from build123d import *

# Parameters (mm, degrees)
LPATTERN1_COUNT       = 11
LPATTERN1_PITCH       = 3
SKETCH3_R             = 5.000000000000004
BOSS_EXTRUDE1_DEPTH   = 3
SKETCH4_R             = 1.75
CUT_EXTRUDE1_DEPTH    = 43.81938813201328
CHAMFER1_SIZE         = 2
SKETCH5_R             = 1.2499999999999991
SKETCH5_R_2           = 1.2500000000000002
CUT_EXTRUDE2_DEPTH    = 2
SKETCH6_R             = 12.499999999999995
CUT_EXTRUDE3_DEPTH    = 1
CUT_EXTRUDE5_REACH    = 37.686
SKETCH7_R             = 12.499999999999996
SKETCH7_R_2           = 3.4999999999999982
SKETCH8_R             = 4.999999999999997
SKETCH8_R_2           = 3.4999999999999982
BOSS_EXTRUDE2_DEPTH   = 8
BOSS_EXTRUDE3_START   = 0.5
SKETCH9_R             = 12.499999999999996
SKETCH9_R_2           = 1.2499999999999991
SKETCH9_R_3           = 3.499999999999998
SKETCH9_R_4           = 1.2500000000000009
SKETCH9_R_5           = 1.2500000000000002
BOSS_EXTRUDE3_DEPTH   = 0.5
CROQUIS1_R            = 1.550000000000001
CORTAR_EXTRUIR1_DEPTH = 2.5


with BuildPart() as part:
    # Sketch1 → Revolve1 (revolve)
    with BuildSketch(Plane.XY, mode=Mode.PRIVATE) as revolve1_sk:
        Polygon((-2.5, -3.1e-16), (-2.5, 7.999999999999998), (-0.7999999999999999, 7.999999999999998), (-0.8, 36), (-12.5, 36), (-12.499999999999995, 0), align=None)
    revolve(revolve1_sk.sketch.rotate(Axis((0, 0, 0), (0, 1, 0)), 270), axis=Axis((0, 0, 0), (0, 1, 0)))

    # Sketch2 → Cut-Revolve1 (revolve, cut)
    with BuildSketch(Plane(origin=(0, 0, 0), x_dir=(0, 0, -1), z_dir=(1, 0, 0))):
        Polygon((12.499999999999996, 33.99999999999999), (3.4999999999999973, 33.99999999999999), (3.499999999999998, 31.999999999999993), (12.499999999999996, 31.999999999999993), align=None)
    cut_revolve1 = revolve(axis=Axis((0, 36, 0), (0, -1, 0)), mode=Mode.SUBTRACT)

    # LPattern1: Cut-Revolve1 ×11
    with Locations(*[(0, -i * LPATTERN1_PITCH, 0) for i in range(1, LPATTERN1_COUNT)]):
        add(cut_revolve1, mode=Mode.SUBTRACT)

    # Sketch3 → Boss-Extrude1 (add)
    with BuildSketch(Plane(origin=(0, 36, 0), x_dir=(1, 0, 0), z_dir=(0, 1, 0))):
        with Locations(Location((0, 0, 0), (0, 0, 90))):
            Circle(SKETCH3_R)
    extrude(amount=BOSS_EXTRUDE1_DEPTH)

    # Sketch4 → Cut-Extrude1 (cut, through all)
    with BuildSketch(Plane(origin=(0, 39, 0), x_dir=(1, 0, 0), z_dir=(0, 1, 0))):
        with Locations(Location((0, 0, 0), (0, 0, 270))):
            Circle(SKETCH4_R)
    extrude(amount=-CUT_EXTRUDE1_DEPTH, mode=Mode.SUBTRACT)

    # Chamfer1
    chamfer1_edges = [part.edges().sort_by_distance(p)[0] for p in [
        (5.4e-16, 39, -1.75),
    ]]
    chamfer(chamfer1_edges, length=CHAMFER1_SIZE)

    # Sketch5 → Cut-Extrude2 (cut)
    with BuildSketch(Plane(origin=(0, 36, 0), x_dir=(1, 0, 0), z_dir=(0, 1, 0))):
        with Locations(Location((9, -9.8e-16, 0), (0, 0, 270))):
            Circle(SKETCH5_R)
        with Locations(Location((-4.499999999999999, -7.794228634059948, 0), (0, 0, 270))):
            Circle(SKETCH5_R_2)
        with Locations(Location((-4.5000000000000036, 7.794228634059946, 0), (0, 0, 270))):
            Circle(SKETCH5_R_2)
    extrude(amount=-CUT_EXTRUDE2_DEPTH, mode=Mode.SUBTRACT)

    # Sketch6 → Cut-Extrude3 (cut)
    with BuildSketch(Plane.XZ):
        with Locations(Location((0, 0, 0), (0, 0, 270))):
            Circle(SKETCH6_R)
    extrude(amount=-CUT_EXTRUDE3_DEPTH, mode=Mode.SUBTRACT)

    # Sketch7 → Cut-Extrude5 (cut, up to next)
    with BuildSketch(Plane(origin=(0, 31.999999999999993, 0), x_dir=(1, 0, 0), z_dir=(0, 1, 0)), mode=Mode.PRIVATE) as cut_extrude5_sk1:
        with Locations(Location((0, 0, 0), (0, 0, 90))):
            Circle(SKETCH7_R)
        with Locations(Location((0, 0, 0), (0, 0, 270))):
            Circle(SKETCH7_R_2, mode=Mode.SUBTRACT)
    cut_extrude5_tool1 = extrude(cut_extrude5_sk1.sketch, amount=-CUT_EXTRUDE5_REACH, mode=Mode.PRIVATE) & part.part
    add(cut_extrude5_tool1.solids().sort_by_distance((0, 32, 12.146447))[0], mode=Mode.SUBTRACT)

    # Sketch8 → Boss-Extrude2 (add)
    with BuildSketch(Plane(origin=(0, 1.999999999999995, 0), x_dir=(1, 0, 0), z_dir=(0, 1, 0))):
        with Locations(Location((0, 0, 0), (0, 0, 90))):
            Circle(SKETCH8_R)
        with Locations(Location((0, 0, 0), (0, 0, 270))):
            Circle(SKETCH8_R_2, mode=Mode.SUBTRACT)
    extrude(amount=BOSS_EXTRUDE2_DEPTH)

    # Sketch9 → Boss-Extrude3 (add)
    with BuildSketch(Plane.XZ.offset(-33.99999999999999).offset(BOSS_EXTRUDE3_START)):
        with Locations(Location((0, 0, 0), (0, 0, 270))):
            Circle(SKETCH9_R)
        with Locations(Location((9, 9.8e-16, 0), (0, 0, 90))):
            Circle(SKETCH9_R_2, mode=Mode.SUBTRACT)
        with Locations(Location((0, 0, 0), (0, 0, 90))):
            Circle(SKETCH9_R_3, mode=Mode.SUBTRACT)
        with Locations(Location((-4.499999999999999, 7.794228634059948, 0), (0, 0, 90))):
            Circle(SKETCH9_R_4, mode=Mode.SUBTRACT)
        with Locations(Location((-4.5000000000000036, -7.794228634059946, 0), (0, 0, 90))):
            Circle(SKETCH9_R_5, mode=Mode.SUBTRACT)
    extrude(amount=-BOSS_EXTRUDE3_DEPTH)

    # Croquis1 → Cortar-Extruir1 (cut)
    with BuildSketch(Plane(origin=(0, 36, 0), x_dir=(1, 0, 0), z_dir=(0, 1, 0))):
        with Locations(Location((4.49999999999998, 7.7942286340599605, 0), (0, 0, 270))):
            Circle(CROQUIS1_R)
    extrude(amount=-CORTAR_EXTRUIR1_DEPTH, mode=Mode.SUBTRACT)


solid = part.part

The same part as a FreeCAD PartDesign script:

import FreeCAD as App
import Part
import Sketcher


def edges_at(feature, points):
    """Names of the edges that pass closest to the given points."""
    edges = feature.Shape.Edges
    near = lambda p: min(range(len(edges)), key=lambda i: edges[i].distToShape(Part.Vertex(*p))[0])
    return sorted({f"Edge{near(p) + 1}" for p in points})

doc = App.newDocument("Part")
params = doc.addObject("Spreadsheet::Sheet", "Params")
for row, (alias, value) in enumerate([
    ("sketch1_width", "10 mm"),
    ("sketch1_height", "8 mm"),
    ("sketch1_height2", "28 mm"),
    ("sketch1_width2", "1.7 mm"),
    ("revolution_angle", "360 deg"),
    ("sketch2_width", "2 mm"),
    ("sketch2_height", "9 mm"),
    ("groove_angle", "360 deg"),
    ("linearpattern_pitch", "3 mm"),
    ("sketch3_diameter", "10 mm"),
    ("pad1_length", "3 mm"),
    ("sketch4_diameter", "3.5 mm"),
    ("chamfer_size", "2 mm"),
    ("sketch5_diameter", "2.5 mm"),
    ("pocket2_length", "2 mm"),
    ("sketch6_diameter", "25 mm"),
    ("pocket3_length", "1 mm"),
    ("sketch7_diameter", "25 mm"),
    ("sketch7_diameter2", "7 mm"),
    ("pocket4_length", "1 mm"),
    ("sketch8_diameter", "10 mm"),
    ("sketch8_diameter2", "7 mm"),
    ("pad2_length", "8 mm"),
    ("sketch9_diameter", "25 mm"),
    ("sketch9_diameter2", "7 mm"),
    ("sketch9_diameter3", "2.5 mm"),
    ("pad3_length", "0.5 mm"),
    ("sketch10_diameter", "3.1 mm"),
    ("pocket5_length", "2.5 mm"),
], start=1):
    params.set(f"A{row}", alias)
    params.set(f"B{row}", "=" + value)
    params.setAlias(f"B{row}", alias)

body = doc.addObject("PartDesign::Body", "Body")

# Sketch on XY plane
sketch1 = body.newObject("Sketcher::SketchObject", "Sketch")
sketch1.AttachmentSupport = (doc.getObject("XY_Plane"), [""])
sketch1.MapMode = "FlatFace"
sketch1.addGeometry(Part.LineSegment(App.Vector(-2.5, 0, 0), App.Vector(-2.5, 8, 0)), False)
sketch1.addGeometry(Part.LineSegment(App.Vector(-2.5, 8, 0), App.Vector(-0.8, 8, 0)), False)
sketch1.addGeometry(Part.LineSegment(App.Vector(-0.8, 8, 0), App.Vector(-0.8, 36, 0)), False)
sketch1.addGeometry(Part.LineSegment(App.Vector(-0.8, 36, 0), App.Vector(-12.5, 36, 0)), False)
sketch1.addGeometry(Part.LineSegment(App.Vector(-12.5, 36, 0), App.Vector(-12.5, 0, 0)), False)
sketch1.addGeometry(Part.LineSegment(App.Vector(-12.5, 0, 0), App.Vector(-2.5, 0, 0)), False)
sketch1.addConstraint(Sketcher.Constraint("Coincident", 0, 2, 1, 1))
sketch1.addConstraint(Sketcher.Constraint("Coincident", 1, 2, 2, 1))
sketch1.addConstraint(Sketcher.Constraint("Coincident", 2, 2, 3, 1))
sketch1.addConstraint(Sketcher.Constraint("Coincident", 3, 2, 4, 1))
sketch1.addConstraint(Sketcher.Constraint("Coincident", 4, 2, 5, 1))
sketch1.addConstraint(Sketcher.Constraint("Coincident", 5, 2, 0, 1))
sketch1.addConstraint(Sketcher.Constraint("Vertical", 0))
sketch1.addConstraint(Sketcher.Constraint("Horizontal", 1))
sketch1.addConstraint(Sketcher.Constraint("Vertical", 2))
sketch1.addConstraint(Sketcher.Constraint("Horizontal", 3))
sketch1.addConstraint(Sketcher.Constraint("Vertical", 4))
sketch1.addConstraint(Sketcher.Constraint("Horizontal", 5))
sketch1.addConstraint(Sketcher.Constraint("PointOnObject", 4, 2, -1))
sketch1.addConstraint(Sketcher.Constraint("DistanceX", 5, 1, 5, 2, 10.0))
sketch1.addConstraint(Sketcher.Constraint("DistanceY", 0, 1, 0, 2, 8.0))
sketch1.addConstraint(Sketcher.Constraint("DistanceY", 2, 1, 2, 2, 28.0))
sketch1.addConstraint(Sketcher.Constraint("DistanceX", 1, 1, 1, 2, 1.7))
sketch1.addConstraint(Sketcher.Constraint("DistanceX", 0, 2, -1, 1, 2.5))
sketch1.setExpression("Constraints[13]", "Params.sketch1_width")
sketch1.setExpression("Constraints[14]", "Params.sketch1_height")
sketch1.setExpression("Constraints[15]", "Params.sketch1_height2")
sketch1.setExpression("Constraints[16]", "Params.sketch1_width2")
revolution = body.newObject("PartDesign::Revolution", "Revolution")
revolution.Profile = sketch1
revolution.ReferenceAxis = (sketch1, ["V_Axis"])
revolution.setExpression("Angle", "Params.revolution_angle")

# Sketch on YZ plane
sketch2 = body.newObject("Sketcher::SketchObject", "Sketch001")
sketch2.AttachmentSupport = (doc.getObject("YZ_Plane"), [""])
sketch2.MapMode = "FlatFace"
sketch2.addGeometry(Part.LineSegment(App.Vector(34, -12.5, 0), App.Vector(34, -3.5, 0)), False)
sketch2.addGeometry(Part.LineSegment(App.Vector(34, -3.5, 0), App.Vector(32, -3.5, 0)), False)
sketch2.addGeometry(Part.LineSegment(App.Vector(32, -3.5, 0), App.Vector(32, -12.5, 0)), False)
sketch2.addGeometry(Part.LineSegment(App.Vector(32, -12.5, 0), App.Vector(34, -12.5, 0)), False)
sketch2.addConstraint(Sketcher.Constraint("Coincident", 0, 2, 1, 1))
sketch2.addConstraint(Sketcher.Constraint("Coincident", 1, 2, 2, 1))
sketch2.addConstraint(Sketcher.Constraint("Coincident", 2, 2, 3, 1))
sketch2.addConstraint(Sketcher.Constraint("Coincident", 3, 2, 0, 1))
sketch2.addConstraint(Sketcher.Constraint("Vertical", 0))
sketch2.addConstraint(Sketcher.Constraint("Horizontal", 1))
sketch2.addConstraint(Sketcher.Constraint("Vertical", 2))
sketch2.addConstraint(Sketcher.Constraint("Horizontal", 3))
sketch2.addConstraint(Sketcher.Constraint("DistanceX", 1, 2, 1, 1, 2.0))
sketch2.addConstraint(Sketcher.Constraint("DistanceY", 0, 1, 0, 2, 9.0))
sketch2.addConstraint(Sketcher.Constraint("DistanceX", -1, 1, 0, 2, 34.0))
sketch2.addConstraint(Sketcher.Constraint("DistanceY", 0, 2, -1, 1, 3.5))
sketch2.setExpression("Constraints[8]", "Params.sketch2_width")
sketch2.setExpression("Constraints[9]", "Params.sketch2_height")
groove = body.newObject("PartDesign::Groove", "Groove")
groove.Profile = sketch2
groove.ReferenceAxis = (sketch2, ["H_Axis"])
groove.setExpression("Angle", "Params.groove_angle")
doc.recompute()

linearpattern = body.newObject("PartDesign::LinearPattern", "LinearPattern")
linearpattern.Originals = [groove]
linearpattern.Direction = (doc.getObject("Y_Axis"), [""])
linearpattern.Mode = "offset"
linearpattern.setExpression("Offset", "Params.linearpattern_pitch")
linearpattern.Occurrences = 11
linearpattern.Reversed = True
body.Tip = linearpattern

# Sketch on XZ plane
sketch3 = body.newObject("Sketcher::SketchObject", "Sketch002")
sketch3.AttachmentSupport = (doc.getObject("XZ_Plane"), [""])
sketch3.MapMode = "FlatFace"
sketch3.AttachmentOffset = App.Placement(App.Vector(0, 0, -36), App.Rotation())
sketch3.addGeometry(Part.Circle(App.Vector(0, 0, 0), App.Vector(0, 0, 1), 5), False)
sketch3.addConstraint(Sketcher.Constraint("Coincident", 0, 3, -1, 1))
sketch3.addConstraint(Sketcher.Constraint("Diameter", 0, 10.0))
sketch3.setExpression("Constraints[1]", "Params.sketch3_diameter")
pad1 = body.newObject("PartDesign::Pad", "Pad")
pad1.Profile = sketch3
pad1.setExpression("Length", "Params.pad1_length")
pad1.Reversed = True

# Sketch on XZ plane
sketch4 = body.newObject("Sketcher::SketchObject", "Sketch003")
sketch4.AttachmentSupport = (doc.getObject("XZ_Plane"), [""])
sketch4.MapMode = "FlatFace"
sketch4.AttachmentOffset = App.Placement(App.Vector(0, 0, -39), App.Rotation())
sketch4.addGeometry(Part.Circle(App.Vector(0, 0, 0), App.Vector(0, 0, 1), 1.8), False)
sketch4.addConstraint(Sketcher.Constraint("Coincident", 0, 3, -1, 1))
sketch4.addConstraint(Sketcher.Constraint("Diameter", 0, 3.5))
sketch4.setExpression("Constraints[1]", "Params.sketch4_diameter")
pocket1 = body.newObject("PartDesign::Pocket", "Pocket")
pocket1.Profile = sketch4
pocket1.Type = "ThroughAll"
pocket1.Reversed = True
doc.recompute()

chamfer = body.newObject("PartDesign::Chamfer", "Chamfer")
chamfer.Base = (pocket1, edges_at(pocket1, [(0, 39, -1.75)]))
chamfer.setExpression("Size", "Params.chamfer_size")

# Sketch on XZ plane
sketch5 = body.newObject("Sketcher::SketchObject", "Sketch004")
sketch5.AttachmentSupport = (doc.getObject("XZ_Plane"), [""])
sketch5.MapMode = "FlatFace"
sketch5.AttachmentOffset = App.Placement(App.Vector(0, 0, -36), App.Rotation())
sketch5.addGeometry(Part.Circle(App.Vector(9, 0, 0), App.Vector(0, 0, 1), 1.2), False)
sketch5.addGeometry(Part.Circle(App.Vector(-4.5, 7.8, 0), App.Vector(0, 0, 1), 1.2), False)
sketch5.addGeometry(Part.Circle(App.Vector(-4.5, -7.8, 0), App.Vector(0, 0, 1), 1.2), False)
sketch5.addConstraint(Sketcher.Constraint("Equal", 0, 1))
sketch5.addConstraint(Sketcher.Constraint("Equal", 1, 2))
sketch5.addConstraint(Sketcher.Constraint("Symmetric", 1, 3, 2, 3, -1))
sketch5.addConstraint(Sketcher.Constraint("PointOnObject", 0, 3, -1))
sketch5.addConstraint(Sketcher.Constraint("Diameter", 0, 2.5))
sketch5.addConstraint(Sketcher.Constraint("DistanceX", -1, 1, 0, 3, 9.0))
sketch5.addConstraint(Sketcher.Constraint("DistanceX", 1, 3, -1, 1, 4.5))
sketch5.addConstraint(Sketcher.Constraint("DistanceY", -1, 1, 1, 3, 7.794229))
sketch5.setExpression("Constraints[4]", "Params.sketch5_diameter")
pocket2 = body.newObject("PartDesign::Pocket", "Pocket001")
pocket2.Profile = sketch5
pocket2.setExpression("Length", "Params.pocket2_length")
pocket2.Reversed = True

# Sketch on XZ plane
sketch6 = body.newObject("Sketcher::SketchObject", "Sketch005")
sketch6.AttachmentSupport = (doc.getObject("XZ_Plane"), [""])
sketch6.MapMode = "FlatFace"
sketch6.addGeometry(Part.Circle(App.Vector(0, 0, 0), App.Vector(0, 0, 1), 12), False)
sketch6.addConstraint(Sketcher.Constraint("Coincident", 0, 3, -1, 1))
sketch6.addConstraint(Sketcher.Constraint("Diameter", 0, 25.0))
sketch6.setExpression("Constraints[1]", "Params.sketch6_diameter")
pocket3 = body.newObject("PartDesign::Pocket", "Pocket002")
pocket3.Profile = sketch6
pocket3.setExpression("Length", "Params.pocket3_length")

# Sketch on XZ plane
sketch7 = body.newObject("Sketcher::SketchObject", "Sketch006")
sketch7.AttachmentSupport = (doc.getObject("XZ_Plane"), [""])
sketch7.MapMode = "FlatFace"
sketch7.AttachmentOffset = App.Placement(App.Vector(0, 0, -32), App.Rotation())
sketch7.addGeometry(Part.Circle(App.Vector(0, 0, 0), App.Vector(0, 0, 1), 12.5), False)
sketch7.addGeometry(Part.Circle(App.Vector(0, 0, 0), App.Vector(0, 0, 1), 3.5), False)
sketch7.addConstraint(Sketcher.Constraint("Coincident", 0, 3, -1, 1))
sketch7.addConstraint(Sketcher.Constraint("Coincident", 1, 3, -1, 1))
sketch7.addConstraint(Sketcher.Constraint("Diameter", 0, 25.0))
sketch7.addConstraint(Sketcher.Constraint("Diameter", 1, 7.0))
sketch7.setExpression("Constraints[2]", "Params.sketch7_diameter")
sketch7.setExpression("Constraints[3]", "Params.sketch7_diameter2")
pocket4 = body.newObject("PartDesign::Pocket", "Pocket003")
pocket4.Profile = sketch7
pocket4.setExpression("Length", "Params.pocket4_length")
pocket4.Reversed = True

# Sketch on XZ plane
sketch8 = body.newObject("Sketcher::SketchObject", "Sketch007")
sketch8.AttachmentSupport = (doc.getObject("XZ_Plane"), [""])
sketch8.MapMode = "FlatFace"
sketch8.AttachmentOffset = App.Placement(App.Vector(0, 0, -2), App.Rotation())
sketch8.addGeometry(Part.Circle(App.Vector(0, 0, 0), App.Vector(0, 0, 1), 5), False)
sketch8.addGeometry(Part.Circle(App.Vector(0, 0, 0), App.Vector(0, 0, 1), 3.5), False)
sketch8.addConstraint(Sketcher.Constraint("Coincident", 0, 3, -1, 1))
sketch8.addConstraint(Sketcher.Constraint("Coincident", 1, 3, -1, 1))
sketch8.addConstraint(Sketcher.Constraint("Diameter", 0, 10.0))
sketch8.addConstraint(Sketcher.Constraint("Diameter", 1, 7.0))
sketch8.setExpression("Constraints[2]", "Params.sketch8_diameter")
sketch8.setExpression("Constraints[3]", "Params.sketch8_diameter2")
pad2 = body.newObject("PartDesign::Pad", "Pad001")
pad2.Profile = sketch8
pad2.setExpression("Length", "Params.pad2_length")
pad2.Reversed = True

# Sketch on XZ plane
sketch9 = body.newObject("Sketcher::SketchObject", "Sketch008")
sketch9.AttachmentSupport = (doc.getObject("XZ_Plane"), [""])
sketch9.MapMode = "FlatFace"
sketch9.AttachmentOffset = App.Placement(App.Vector(0, 0, -33.5), App.Rotation())
sketch9.addGeometry(Part.Circle(App.Vector(0, 0, 0), App.Vector(0, 0, 1), 12.5), False)
sketch9.addGeometry(Part.Circle(App.Vector(-4.5, 7.8, 0), App.Vector(0, 0, 1), 1.2), False)
sketch9.addGeometry(Part.Circle(App.Vector(-4.5, -7.8, 0), App.Vector(0, 0, 1), 1.2), False)
sketch9.addGeometry(Part.Circle(App.Vector(0, 0, 0), App.Vector(0, 0, 1), 3.5), False)
sketch9.addGeometry(Part.Circle(App.Vector(9, 0, 0), App.Vector(0, 0, 1), 1.2), False)
sketch9.addConstraint(Sketcher.Constraint("Coincident", 0, 3, -1, 1))
sketch9.addConstraint(Sketcher.Constraint("Coincident", 3, 3, -1, 1))
sketch9.addConstraint(Sketcher.Constraint("Equal", 1, 2))
sketch9.addConstraint(Sketcher.Constraint("Equal", 2, 4))
sketch9.addConstraint(Sketcher.Constraint("Symmetric", 1, 3, 2, 3, -1))
sketch9.addConstraint(Sketcher.Constraint("PointOnObject", 4, 3, -1))
sketch9.addConstraint(Sketcher.Constraint("Diameter", 0, 25.0))
sketch9.addConstraint(Sketcher.Constraint("Diameter", 3, 7.0))
sketch9.addConstraint(Sketcher.Constraint("Diameter", 1, 2.5))
sketch9.addConstraint(Sketcher.Constraint("DistanceX", -1, 1, 4, 3, 9.0))
sketch9.addConstraint(Sketcher.Constraint("DistanceX", 1, 3, -1, 1, 4.5))
sketch9.addConstraint(Sketcher.Constraint("DistanceY", -1, 1, 1, 3, 7.794229))
sketch9.setExpression("Constraints[6]", "Params.sketch9_diameter")
sketch9.setExpression("Constraints[7]", "Params.sketch9_diameter2")
sketch9.setExpression("Constraints[8]", "Params.sketch9_diameter3")
pad3 = body.newObject("PartDesign::Pad", "Pad002")
pad3.Profile = sketch9
pad3.setExpression("Length", "Params.pad3_length")
pad3.Reversed = True

# Sketch on XZ plane
sketch10 = body.newObject("Sketcher::SketchObject", "Sketch009")
sketch10.AttachmentSupport = (doc.getObject("XZ_Plane"), [""])
sketch10.MapMode = "FlatFace"
sketch10.AttachmentOffset = App.Placement(App.Vector(0, 0, -36), App.Rotation())
sketch10.addGeometry(Part.Circle(App.Vector(4.5, -7.8, 0), App.Vector(0, 0, 1), 1.6), False)
sketch10.addConstraint(Sketcher.Constraint("Diameter", 0, 3.1))
sketch10.addConstraint(Sketcher.Constraint("DistanceX", -1, 1, 0, 3, 4.5))
sketch10.addConstraint(Sketcher.Constraint("DistanceY", 0, 3, -1, 1, 7.794229))
sketch10.setExpression("Constraints[0]", "Params.sketch10_diameter")
pocket5 = body.newObject("PartDesign::Pocket", "Pocket004")
pocket5.Profile = sketch10
pocket5.setExpression("Length", "Params.pocket5_length")
pocket5.Reversed = True

doc.recompute()
